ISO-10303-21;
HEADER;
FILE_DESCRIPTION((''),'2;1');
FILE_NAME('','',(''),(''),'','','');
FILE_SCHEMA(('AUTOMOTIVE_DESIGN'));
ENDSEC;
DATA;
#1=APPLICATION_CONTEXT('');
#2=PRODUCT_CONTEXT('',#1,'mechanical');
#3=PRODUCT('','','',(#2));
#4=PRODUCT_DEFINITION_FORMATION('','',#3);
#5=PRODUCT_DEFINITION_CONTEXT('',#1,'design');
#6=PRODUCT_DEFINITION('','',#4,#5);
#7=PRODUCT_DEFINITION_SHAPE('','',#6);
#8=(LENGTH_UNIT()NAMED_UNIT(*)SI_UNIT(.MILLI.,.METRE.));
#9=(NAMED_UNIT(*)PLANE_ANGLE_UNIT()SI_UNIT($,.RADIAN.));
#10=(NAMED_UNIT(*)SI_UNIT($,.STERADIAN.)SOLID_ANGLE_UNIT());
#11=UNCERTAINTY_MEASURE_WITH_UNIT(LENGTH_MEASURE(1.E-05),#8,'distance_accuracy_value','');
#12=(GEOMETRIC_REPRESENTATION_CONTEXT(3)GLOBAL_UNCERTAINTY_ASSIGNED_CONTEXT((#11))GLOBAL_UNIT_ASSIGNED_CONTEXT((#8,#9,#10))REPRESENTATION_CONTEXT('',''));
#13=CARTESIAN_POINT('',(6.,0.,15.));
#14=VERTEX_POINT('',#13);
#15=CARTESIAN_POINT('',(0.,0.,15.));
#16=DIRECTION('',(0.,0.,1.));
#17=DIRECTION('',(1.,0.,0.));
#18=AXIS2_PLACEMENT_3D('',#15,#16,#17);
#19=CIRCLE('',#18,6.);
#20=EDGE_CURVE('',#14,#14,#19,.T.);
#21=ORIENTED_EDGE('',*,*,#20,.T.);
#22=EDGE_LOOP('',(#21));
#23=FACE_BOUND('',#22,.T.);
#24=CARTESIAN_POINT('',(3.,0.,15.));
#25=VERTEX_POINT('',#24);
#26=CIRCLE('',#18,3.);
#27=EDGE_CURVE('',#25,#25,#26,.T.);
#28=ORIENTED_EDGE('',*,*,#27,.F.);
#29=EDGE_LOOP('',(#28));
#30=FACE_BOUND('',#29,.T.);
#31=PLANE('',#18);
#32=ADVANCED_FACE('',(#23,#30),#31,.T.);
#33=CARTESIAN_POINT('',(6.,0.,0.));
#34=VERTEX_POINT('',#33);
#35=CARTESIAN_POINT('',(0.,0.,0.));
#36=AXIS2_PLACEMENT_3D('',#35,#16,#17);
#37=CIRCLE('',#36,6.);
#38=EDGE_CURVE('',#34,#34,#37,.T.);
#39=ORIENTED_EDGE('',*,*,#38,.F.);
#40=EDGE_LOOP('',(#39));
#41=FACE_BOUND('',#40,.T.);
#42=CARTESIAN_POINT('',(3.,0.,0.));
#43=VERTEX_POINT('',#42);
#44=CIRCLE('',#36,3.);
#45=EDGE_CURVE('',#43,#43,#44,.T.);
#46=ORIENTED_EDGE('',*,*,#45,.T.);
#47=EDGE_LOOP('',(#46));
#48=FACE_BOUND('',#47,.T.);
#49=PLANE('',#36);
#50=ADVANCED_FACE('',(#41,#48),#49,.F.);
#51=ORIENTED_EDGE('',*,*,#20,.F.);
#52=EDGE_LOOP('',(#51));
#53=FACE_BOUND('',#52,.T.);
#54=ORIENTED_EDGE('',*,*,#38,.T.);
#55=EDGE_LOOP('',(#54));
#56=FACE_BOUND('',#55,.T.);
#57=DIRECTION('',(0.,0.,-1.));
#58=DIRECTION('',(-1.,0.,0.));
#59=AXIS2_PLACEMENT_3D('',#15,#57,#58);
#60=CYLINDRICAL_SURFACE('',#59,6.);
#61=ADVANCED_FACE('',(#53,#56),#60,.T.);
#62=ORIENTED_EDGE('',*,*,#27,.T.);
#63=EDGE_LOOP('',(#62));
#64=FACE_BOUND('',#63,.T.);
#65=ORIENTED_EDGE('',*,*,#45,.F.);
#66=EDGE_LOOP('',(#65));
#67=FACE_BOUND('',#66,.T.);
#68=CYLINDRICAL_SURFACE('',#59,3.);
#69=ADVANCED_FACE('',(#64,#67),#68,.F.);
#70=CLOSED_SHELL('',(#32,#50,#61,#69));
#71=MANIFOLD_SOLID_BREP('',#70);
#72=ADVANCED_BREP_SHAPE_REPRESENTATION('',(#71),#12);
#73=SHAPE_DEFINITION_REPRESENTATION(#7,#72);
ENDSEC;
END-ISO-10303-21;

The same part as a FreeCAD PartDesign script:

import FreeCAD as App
import Part
import Sketcher

V = App.Vector
Q = App.Units.Quantity

doc = App.newDocument("Part")
params = doc.addObject("Spreadsheet::Sheet", "Params")
for row, (alias, value) in enumerate([
    ("sketch1_diameter", "12 mm"),
    ("sketch1_diameter2", "6 mm"),
    ("pad1_length", "15 mm"),
], start=1):
    params.set(f"A{row}", alias)
    params.set(f"B{row}", "=" + value)
    params.setAlias(f"B{row}", alias)

body = doc.addObject("PartDesign::Body", "Body")

# Sketch on XY plane
sketch1 = body.newObject("Sketcher::SketchObject", "Sketch")
sketch1.AttachmentSupport = (doc.getObject("XY_Plane"), [""])
sketch1.MapMode = "FlatFace"
sketch1.addGeometry([
    Part.Circle(V(0, 0, 0), V(0, 0, 1), 6),
    Part.Circle(V(0, 0, 0), V(0, 0, 1), 3),
], False)
sketch1.addConstraint([
    Sketcher.Constraint("Coincident", 0, 3, -1, 1),
    Sketcher.Constraint("Coincident", 1, 3, -1, 1),
    Sketcher.Constraint("Diameter", 0, Q("12 mm")),
    Sketcher.Constraint("Diameter", 1, Q("6 mm")),
])
sketch1.setExpression("Constraints[2]", "Params.sketch1_diameter")
sketch1.setExpression("Constraints[3]", "Params.sketch1_diameter2")
pad1 = body.newObject("PartDesign::Pad", "Pad")
pad1.Profile = sketch1
pad1.setExpression("Length", "Params.pad1_length")

doc.recompute()
